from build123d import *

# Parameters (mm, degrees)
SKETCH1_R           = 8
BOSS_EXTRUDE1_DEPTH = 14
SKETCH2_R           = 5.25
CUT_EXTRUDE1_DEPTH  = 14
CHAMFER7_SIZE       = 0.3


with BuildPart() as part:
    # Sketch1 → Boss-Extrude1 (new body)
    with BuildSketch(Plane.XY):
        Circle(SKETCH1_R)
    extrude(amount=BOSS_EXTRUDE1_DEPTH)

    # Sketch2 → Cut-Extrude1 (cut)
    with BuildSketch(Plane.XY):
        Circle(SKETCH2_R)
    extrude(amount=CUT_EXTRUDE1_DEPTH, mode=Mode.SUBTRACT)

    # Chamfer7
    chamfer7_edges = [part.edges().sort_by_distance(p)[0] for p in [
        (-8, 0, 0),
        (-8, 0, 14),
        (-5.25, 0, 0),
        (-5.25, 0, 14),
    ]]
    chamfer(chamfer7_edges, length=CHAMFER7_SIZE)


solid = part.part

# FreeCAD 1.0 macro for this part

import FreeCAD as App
import Part
import Sketcher


def edges_at(feature, points):
    """Names of the edges that pass closest to the given points."""
    edges = feature.Shape.Edges
    near = lambda p: min(range(len(edges)), key=lambda i: edges[i].distToShape(Part.Vertex(*p))[0])
    return sorted({f"Edge{near(p) + 1}" for p in points})

doc = App.newDocument("Part")
params = doc.addObject("Spreadsheet::Sheet", "Params")
for row, (alias, value) in enumerate([
    ("sketch1_diameter", "16 mm"),
    ("pad1_length", "14 mm"),
    ("sketch2_diameter", "10.5 mm"),
    ("pocket1_length", "14 mm"),
    ("chamfer_size", "0.3 mm"),
], start=1):
    params.set(f"A{row}", alias)
    params.set(f"B{row}", "=" + value)
    params.setAlias(f"B{row}", alias)

body = doc.addObject("PartDesign::Body", "Body")

sketch1 = body.newObject("Sketcher::SketchObject", "Sketch")
sketch1.AttachmentSupport = (doc.getObject("XY_Plane"), [""])
sketch1.MapMode = "FlatFace"
sketch1.addGeometry(Part.Circle(App.Vector(0, 0, 0), App.Vector(0, 0, 1), 8), False)
sketch1.addConstraint([
    Sketcher.Constraint("Coincident", 0, 3, -1, 1),
    Sketcher.Constraint("Diameter", 0, 16.0),
])
sketch1.setExpression("Constraints[1]", "Params.sketch1_diameter")
pad1 = body.newObject("PartDesign::Pad", "Pad")
pad1.Profile = sketch1
pad1.setExpression("Length", "Params.pad1_length")

sketch2 = body.newObject("Sketcher::SketchObject", "Sketch001")
sketch2.AttachmentSupport = (doc.getObject("XY_Plane"), [""])
sketch2.MapMode = "FlatFace"
sketch2.addGeometry(Part.Circle(App.Vector(0, 0, 0), App.Vector(0, 0, 1), 5), False)
sketch2.addConstraint([
    Sketcher.Constraint("Coincident", 0, 3, -1, 1),
    Sketcher.Constraint("Diameter", 0, 10.5),
])
sketch2.setExpression("Constraints[1]", "Params.sketch2_diameter")
pocket1 = body.newObject("PartDesign::Pocket", "Pocket")
pocket1.Profile = sketch2
pocket1.setExpression("Length", "Params.pocket1_length")
pocket1.Reversed = True
doc.recompute()

chamfer = body.newObject("PartDesign::Chamfer", "Chamfer")
chamfer.Base = (pocket1, edges_at(pocket1, [
    (-8, 0, 0),
    (-8, 0, 14),
    (-5.25, 0, 0),
    (-5.25, 0, 14),
]))
chamfer.setExpression("Size", "Params.chamfer_size")

doc.recompute()
